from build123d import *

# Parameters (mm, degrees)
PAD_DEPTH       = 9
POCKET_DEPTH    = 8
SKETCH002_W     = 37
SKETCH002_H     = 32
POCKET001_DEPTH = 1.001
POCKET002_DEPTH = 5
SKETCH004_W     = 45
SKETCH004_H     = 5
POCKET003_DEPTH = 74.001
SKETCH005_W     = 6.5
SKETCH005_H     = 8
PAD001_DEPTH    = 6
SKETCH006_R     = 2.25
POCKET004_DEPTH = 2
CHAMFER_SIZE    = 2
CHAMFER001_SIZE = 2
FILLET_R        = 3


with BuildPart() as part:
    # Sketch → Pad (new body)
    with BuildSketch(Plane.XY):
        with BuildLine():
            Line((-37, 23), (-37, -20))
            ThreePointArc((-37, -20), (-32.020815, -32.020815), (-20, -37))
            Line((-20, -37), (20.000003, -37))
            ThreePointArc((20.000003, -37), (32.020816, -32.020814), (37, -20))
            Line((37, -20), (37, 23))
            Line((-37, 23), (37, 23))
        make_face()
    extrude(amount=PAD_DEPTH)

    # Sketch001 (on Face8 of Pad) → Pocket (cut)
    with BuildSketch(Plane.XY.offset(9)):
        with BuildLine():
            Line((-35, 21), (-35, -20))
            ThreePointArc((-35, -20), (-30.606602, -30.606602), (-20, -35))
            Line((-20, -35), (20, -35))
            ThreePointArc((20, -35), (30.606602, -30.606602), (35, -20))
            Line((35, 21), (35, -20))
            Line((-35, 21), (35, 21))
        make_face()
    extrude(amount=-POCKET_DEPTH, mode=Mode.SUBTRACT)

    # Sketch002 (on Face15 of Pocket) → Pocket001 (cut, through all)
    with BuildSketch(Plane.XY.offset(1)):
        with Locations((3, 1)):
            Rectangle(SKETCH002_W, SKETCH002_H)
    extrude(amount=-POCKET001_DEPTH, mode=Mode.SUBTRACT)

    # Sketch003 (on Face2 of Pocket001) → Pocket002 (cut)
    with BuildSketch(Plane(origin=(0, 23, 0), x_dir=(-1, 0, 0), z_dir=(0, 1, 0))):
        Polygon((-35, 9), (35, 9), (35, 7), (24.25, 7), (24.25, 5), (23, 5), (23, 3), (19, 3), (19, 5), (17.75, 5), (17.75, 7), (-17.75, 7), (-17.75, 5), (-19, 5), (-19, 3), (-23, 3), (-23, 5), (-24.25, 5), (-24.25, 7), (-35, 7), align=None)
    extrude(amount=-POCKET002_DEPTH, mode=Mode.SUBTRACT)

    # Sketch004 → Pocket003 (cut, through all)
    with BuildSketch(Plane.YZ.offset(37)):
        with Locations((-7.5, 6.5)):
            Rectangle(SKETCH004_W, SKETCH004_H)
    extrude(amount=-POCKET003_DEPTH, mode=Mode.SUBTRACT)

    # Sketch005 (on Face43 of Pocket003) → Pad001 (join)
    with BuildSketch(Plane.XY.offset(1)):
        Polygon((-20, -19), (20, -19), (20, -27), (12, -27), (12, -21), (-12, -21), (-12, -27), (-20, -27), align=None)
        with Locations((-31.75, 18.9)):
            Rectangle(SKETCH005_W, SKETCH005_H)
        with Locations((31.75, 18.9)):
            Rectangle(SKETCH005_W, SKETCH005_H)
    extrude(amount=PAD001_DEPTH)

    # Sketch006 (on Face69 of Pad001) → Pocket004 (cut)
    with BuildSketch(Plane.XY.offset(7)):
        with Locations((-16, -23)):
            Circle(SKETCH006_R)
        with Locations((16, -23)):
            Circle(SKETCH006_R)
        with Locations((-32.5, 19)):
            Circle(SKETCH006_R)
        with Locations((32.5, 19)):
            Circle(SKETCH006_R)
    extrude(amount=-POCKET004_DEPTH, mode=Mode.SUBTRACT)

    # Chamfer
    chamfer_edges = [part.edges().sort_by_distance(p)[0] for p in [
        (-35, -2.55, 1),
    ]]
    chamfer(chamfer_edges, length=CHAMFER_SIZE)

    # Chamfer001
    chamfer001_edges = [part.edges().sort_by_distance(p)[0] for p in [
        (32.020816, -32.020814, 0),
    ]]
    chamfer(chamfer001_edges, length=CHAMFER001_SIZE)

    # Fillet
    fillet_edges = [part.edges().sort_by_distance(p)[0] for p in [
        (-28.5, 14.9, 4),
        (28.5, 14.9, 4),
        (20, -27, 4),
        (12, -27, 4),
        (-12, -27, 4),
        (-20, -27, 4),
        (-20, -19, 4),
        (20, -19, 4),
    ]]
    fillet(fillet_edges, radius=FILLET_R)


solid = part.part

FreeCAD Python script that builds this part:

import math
import FreeCAD as App
import Part
import Sketcher

V = App.Vector


def edges_at(feature, points):
    """Names of the edges that pass closest to the given points."""
    edges = feature.Shape.Edges
    near = lambda p: min(range(len(edges)), key=lambda i: edges[i].distToShape(Part.Vertex(*p))[0])
    return sorted({f"Edge{near(p) + 1}" for p in points})

doc = App.newDocument("Part")
body = doc.addObject("PartDesign::Body", "Body")

# Sketch on XY plane
sketch1 = body.newObject("Sketcher::SketchObject", "Sketch")
sketch1.AttachmentSupport = (doc.getObject("XY_Plane"), [""])
sketch1.MapMode = "FlatFace"
sketch1.addGeometry([
    Part.LineSegment(V(-37, 23, 0), V(-37, -20, 0)),  # 0
    Part.ArcOfCircle(Part.Circle(V(-19.999999, -19.999999, 0), V(0, 0, 1), 17.000001), math.radians(-179.999997), math.radians(-90.000003)),  # 1
    Part.LineSegment(V(-20, -37, 0), V(20.000003, -37, 0)),  # 2
    Part.ArcOfCircle(Part.Circle(V(19.999999, -19.999999, 0), V(0, 0, 1), 17.000001), math.radians(-89.999987), math.radians(-0.000003)),  # 3
    Part.LineSegment(V(37, -20, 0), V(37, 23, 0)),  # 4
    Part.LineSegment(V(37, 23, 0), V(-37, 23, 0)),  # 5
], False)
sketch1.addConstraint([
    Sketcher.Constraint("Tangent", 0, 2, 1, 1),
    Sketcher.Constraint("Tangent", 1, 2, 2, 1),
    Sketcher.Constraint("Tangent", 2, 2, 3, 1),
    Sketcher.Constraint("Tangent", 3, 2, 4, 1),
    Sketcher.Constraint("Coincident", 4, 2, 5, 1),
    Sketcher.Constraint("Coincident", 5, 2, 0, 1),
    Sketcher.Constraint("Vertical", 0),
    Sketcher.Constraint("Horizontal", 2),
    Sketcher.Constraint("Vertical", 4),
    Sketcher.Constraint("Horizontal", 5),
    Sketcher.Constraint("Equal", 1, 3),
    Sketcher.Constraint("Radius", 1, 17.000001),
    Sketcher.Constraint("DistanceX", 5, 2, 5, 1, 74.0),
    Sketcher.Constraint("DistanceY", 0, 2, 0, 1, 43.0),
    Sketcher.Constraint("DistanceX", 1, 3, -1, 1, 19.999999),
    Sketcher.Constraint("DistanceY", 1, 3, -1, 1, 19.999999),
])
pad1 = body.newObject("PartDesign::Pad", "Pad")
pad1.Profile = sketch1
pad1.Length = 9

# Sketch on XY plane
sketch2 = body.newObject("Sketcher::SketchObject", "Sketch001")
sketch2.AttachmentSupport = (doc.getObject("XY_Plane"), [""])
sketch2.MapMode = "FlatFace"
sketch2.AttachmentOffset = App.Placement(V(0, 0, 9), App.Rotation())
sketch2.addGeometry([
    Part.LineSegment(V(-35, 21, 0), V(-35, -20, 0)),  # 0
    Part.ArcOfCircle(Part.Circle(V(-20.000001, -20.000001, 0), V(0, 0, 1), 14.999999), math.radians(179.999996), math.radians(270.000004)),  # 1
    Part.LineSegment(V(-20, -35, 0), V(20, -35, 0)),  # 2
    Part.ArcOfCircle(Part.Circle(V(20.000001, -20.000001, 0), V(0, 0, 1), 14.999999), math.radians(-90.000004), math.radians(0.000004)),  # 3
    Part.LineSegment(V(35, -20, 0), V(35, 21, 0)),  # 4
    Part.LineSegment(V(35, 21, 0), V(-35, 21, 0)),  # 5
], False)
sketch2.addConstraint([
    Sketcher.Constraint("Tangent", 0, 2, 1, 1),
    Sketcher.Constraint("Tangent", 1, 2, 2, 1),
    Sketcher.Constraint("Tangent", 2, 2, 3, 1),
    Sketcher.Constraint("Tangent", 3, 2, 4, 1),
    Sketcher.Constraint("Coincident", 4, 2, 5, 1),
    Sketcher.Constraint("Coincident", 5, 2, 0, 1),
    Sketcher.Constraint("Vertical", 0),
    Sketcher.Constraint("Horizontal", 2),
    Sketcher.Constraint("Vertical", 4),
    Sketcher.Constraint("Horizontal", 5),
    Sketcher.Constraint("Equal", 1, 3),
    Sketcher.Constraint("Radius", 1, 14.999999),
    Sketcher.Constraint("DistanceX", 2, 1, 2, 2, 40.0),
    Sketcher.Constraint("DistanceY", 0, 2, 0, 1, 41.0),
    Sketcher.Constraint("DistanceX", 1, 3, -1, 1, 20.000001),
    Sketcher.Constraint("DistanceY", 1, 3, -1, 1, 20.000001),
])
pocket1 = body.newObject("PartDesign::Pocket", "Pocket")
pocket1.Profile = sketch2
pocket1.Length = 8

# Sketch on XY plane
sketch3 = body.newObject("Sketcher::SketchObject", "Sketch002")
sketch3.AttachmentSupport = (doc.getObject("XY_Plane"), [""])
sketch3.MapMode = "FlatFace"
sketch3.AttachmentOffset = App.Placement(V(0, 0, 1), App.Rotation())
sketch3.addGeometry([
    Part.LineSegment(V(-15.5, 17, 0), V(-15.5, -15, 0)),
    Part.LineSegment(V(-15.5, -15, 0), V(21.5, -15, 0)),
    Part.LineSegment(V(21.5, -15, 0), V(21.5, 17, 0)),
    Part.LineSegment(V(21.5, 17, 0), V(-15.5, 17, 0)),
], False)
sketch3.addConstraint([
    Sketcher.Constraint("Coincident", 0, 2, 1, 1),
    Sketcher.Constraint("Coincident", 1, 2, 2, 1),
    Sketcher.Constraint("Coincident", 2, 2, 3, 1),
    Sketcher.Constraint("Coincident", 3, 2, 0, 1),
    Sketcher.Constraint("Vertical", 0),
    Sketcher.Constraint("Horizontal", 1),
    Sketcher.Constraint("Vertical", 2),
    Sketcher.Constraint("Horizontal", 3),
    Sketcher.Constraint("DistanceX", 1, 1, 1, 2, 37.0),
    Sketcher.Constraint("DistanceY", 0, 2, 0, 1, 32.0),
    Sketcher.Constraint("DistanceY", 0, 2, -1, 1, 15.0),
    Sketcher.Constraint("DistanceX", 0, 2, -1, 1, 15.5),
])
pocket2 = body.newObject("PartDesign::Pocket", "Pocket001")
pocket2.Profile = sketch3
pocket2.Type = "ThroughAll"

# Sketch on XZ plane
sketch4 = body.newObject("Sketcher::SketchObject", "Sketch003")
sketch4.AttachmentSupport = (doc.getObject("XZ_Plane"), [""])
sketch4.MapMode = "FlatFace"
sketch4.AttachmentOffset = App.Placement(V(0, 0, -23), App.Rotation())
sketch4.addGeometry([
    Part.LineSegment(V(-35, 9, 0), V(35, 9, 0)),  # 0
    Part.LineSegment(V(35, 9, 0), V(35, 7, 0)),  # 1
    Part.LineSegment(V(35, 7, 0), V(24.25, 7, 0)),  # 2
    Part.LineSegment(V(24.25, 7, 0), V(24.25, 5, 0)),  # 3
    Part.LineSegment(V(24.25, 5, 0), V(23, 5, 0)),  # 4
    Part.LineSegment(V(23, 5, 0), V(23, 3, 0)),  # 5
    Part.LineSegment(V(23, 3, 0), V(19, 3, 0)),  # 6
    Part.LineSegment(V(19, 3, 0), V(19, 5, 0)),  # 7
    Part.LineSegment(V(19, 5, 0), V(17.75, 5, 0)),  # 8
    Part.LineSegment(V(17.75, 5, 0), V(17.75, 7, 0)),  # 9
    Part.LineSegment(V(17.75, 7, 0), V(-17.75, 7, 0)),  # 10
    Part.LineSegment(V(-17.75, 7, 0), V(-17.75, 5, 0)),  # 11
    Part.LineSegment(V(-17.75, 5, 0), V(-19, 5, 0)),  # 12
    Part.LineSegment(V(-19, 5, 0), V(-19, 3, 0)),  # 13
    Part.LineSegment(V(-19, 3, 0), V(-23, 3, 0)),  # 14
    Part.LineSegment(V(-23, 3, 0), V(-23, 5, 0)),  # 15
    Part.LineSegment(V(-23, 5, 0), V(-24.25, 5, 0)),  # 16
    Part.LineSegment(V(-24.25, 5, 0), V(-24.25, 7, 0)),  # 17
    Part.LineSegment(V(-24.25, 7, 0), V(-35, 7, 0)),  # 18
    Part.LineSegment(V(-35, 7, 0), V(-35, 9, 0)),  # 19
], False)
sketch4.addConstraint([
    Sketcher.Constraint("Coincident", 0, 2, 1, 1),
    Sketcher.Constraint("Coincident", 1, 2, 2, 1),
    Sketcher.Constraint("Coincident", 2, 2, 3, 1),
    Sketcher.Constraint("Coincident", 3, 2, 4, 1),
    Sketcher.Constraint("Coincident", 4, 2, 5, 1),
    Sketcher.Constraint("Coincident", 5, 2, 6, 1),
    Sketcher.Constraint("Coincident", 6, 2, 7, 1),
    Sketcher.Constraint("Coincident", 7, 2, 8, 1),
    Sketcher.Constraint("Coincident", 8, 2, 9, 1),
    Sketcher.Constraint("Coincident", 9, 2, 10, 1),
    Sketcher.Constraint("Coincident", 10, 2, 11, 1),
    Sketcher.Constraint("Coincident", 11, 2, 12, 1),
    Sketcher.Constraint("Coincident", 12, 2, 13, 1),
    Sketcher.Constraint("Coincident", 13, 2, 14, 1),
    Sketcher.Constraint("Coincident", 14, 2, 15, 1),
    Sketcher.Constraint("Coincident", 15, 2, 16, 1),
    Sketcher.Constraint("Coincident", 16, 2, 17, 1),
    Sketcher.Constraint("Coincident", 17, 2, 18, 1),
    Sketcher.Constraint("Coincident", 18, 2, 19, 1),
    Sketcher.Constraint("Coincident", 19, 2, 0, 1),
    Sketcher.Constraint("Horizontal", 0),
    Sketcher.Constraint("Vertical", 1),
    Sketcher.Constraint("Horizontal", 2),
    Sketcher.Constraint("Vertical", 3),
    Sketcher.Constraint("Horizontal", 4),
    Sketcher.Constraint("Vertical", 5),
    Sketcher.Constraint("Horizontal", 6),
    Sketcher.Constraint("Vertical", 7),
    Sketcher.Constraint("Horizontal", 8),
    Sketcher.Constraint("Vertical", 9),
    Sketcher.Constraint("Horizontal", 10),
    Sketcher.Constraint("Vertical", 11),
    Sketcher.Constraint("Horizontal", 12),
    Sketcher.Constraint("Vertical", 13),
    Sketcher.Constraint("Horizontal", 14),
    Sketcher.Constraint("Vertical", 15),
    Sketcher.Constraint("Horizontal", 16),
    Sketcher.Constraint("Vertical", 17),
    Sketcher.Constraint("Horizontal", 18),
    Sketcher.Constraint("Vertical", 19),
    Sketcher.Constraint("Symmetric", 8, 2, 11, 2, -2),
    Sketcher.Constraint("Symmetric", 6, 2, 13, 2, -2),
    Sketcher.Constraint("Symmetric", 4, 2, 15, 2, -2),
    Sketcher.Constraint("Symmetric", 2, 2, 17, 2, -2),
    Sketcher.Constraint("Horizontal", 4, 2, 7, 2),
    Sketcher.Constraint("Horizontal", 2, 2, 9, 2),
    Sketcher.Constraint("Equal", 4, 8),
    Sketcher.Constraint("Equal", 2, 18),
    Sketcher.Constraint("Equal", 1, 3),
    Sketcher.Constraint("Equal", 3, 5),
    Sketcher.Constraint("DistanceX", 0, 1, 0, 2, 70.0),
    Sketcher.Constraint("DistanceX", 6, 2, 6, 1, 4.0),
    Sketcher.Constraint("DistanceY", 1, 2, 1, 1, 2.0),
    Sketcher.Constraint("DistanceX", 10, 2, 10, 1, 35.5),
    Sketcher.Constraint("DistanceY", -1, 1, 0, 2, 9.0),
    Sketcher.Constraint("DistanceX", -1, 1, 4, 2, 23.0),
])
pocket3 = body.newObject("PartDesign::Pocket", "Pocket002")
pocket3.Profile = sketch4
pocket3.Length = 5
pocket3.Reversed = True

# Sketch on YZ plane
sketch5 = body.newObject("Sketcher::SketchObject", "Sketch004")
sketch5.AttachmentSupport = (doc.getObject("YZ_Plane"), [""])
sketch5.MapMode = "FlatFace"
sketch5.AttachmentOffset = App.Placement(V(0, 0, 37), App.Rotation())
sketch5.addGeometry([
    Part.LineSegment(V(-30, 9, 0), V(-30, 4, 0)),
    Part.LineSegment(V(-30, 4, 0), V(15, 4, 0)),
    Part.LineSegment(V(15, 4, 0), V(15, 9, 0)),
    Part.LineSegment(V(15, 9, 0), V(-30, 9, 0)),
], False)
sketch5.addConstraint([
    Sketcher.Constraint("Coincident", 0, 2, 1, 1),
    Sketcher.Constraint("Coincident", 1, 2, 2, 1),
    Sketcher.Constraint("Coincident", 2, 2, 3, 1),
    Sketcher.Constraint("Coincident", 3, 2, 0, 1),
    Sketcher.Constraint("Vertical", 0),
    Sketcher.Constraint("Horizontal", 1),
    Sketcher.Constraint("Vertical", 2),
    Sketcher.Constraint("Horizontal", 3),
    Sketcher.Constraint("DistanceX", 1, 1, 1, 2, 45.0),
    Sketcher.Constraint("DistanceY", 0, 2, 0, 1, 5.0),
    Sketcher.Constraint("DistanceX", 0, 2, -1, 1, 30.0),
    Sketcher.Constraint("DistanceY", -1, 1, 0, 2, 4.0),
])
pocket4 = body.newObject("PartDesign::Pocket", "Pocket003")
pocket4.Profile = sketch5
pocket4.Type = "ThroughAll"

# Sketch on XY plane
sketch6 = body.newObject("Sketcher::SketchObject", "Sketch005")
sketch6.AttachmentSupport = (doc.getObject("XY_Plane"), [""])
sketch6.MapMode = "FlatFace"
sketch6.AttachmentOffset = App.Placement(V(0, 0, 1), App.Rotation())
sketch6.addGeometry([
    Part.LineSegment(V(20, -19, 0), V(-20, -19, 0)),  # 0
    Part.LineSegment(V(-20, -19, 0), V(-20, -27, 0)),  # 1
    Part.LineSegment(V(-20, -27, 0), V(-12, -27, 0)),  # 2
    Part.LineSegment(V(-12, -27, 0), V(-12, -21, 0)),  # 3
    Part.LineSegment(V(-12, -21, 0), V(12, -21, 0)),  # 4
    Part.LineSegment(V(12, -21, 0), V(12, -27, 0)),  # 5
    Part.LineSegment(V(12, -27, 0), V(20, -27, 0)),  # 6
    Part.LineSegment(V(20, -27, 0), V(20, -19, 0)),  # 7
    Part.LineSegment(V(-35, 22.9, 0), V(-35, 14.9, 0)),  # 8
    Part.LineSegment(V(-35, 14.9, 0), V(-28.5, 14.9, 0)),  # 9
    Part.LineSegment(V(-28.5, 14.9, 0), V(-28.5, 22.9, 0)),  # 10
    Part.LineSegment(V(-28.5, 22.9, 0), V(-35, 22.9, 0)),  # 11
    Part.LineSegment(V(28.5, 22.9, 0), V(28.5, 14.9, 0)),  # 12
    Part.LineSegment(V(28.5, 14.9, 0), V(35, 14.9, 0)),  # 13
    Part.LineSegment(V(35, 14.9, 0), V(35, 22.9, 0)),  # 14
    Part.LineSegment(V(35, 22.9, 0), V(28.5, 22.9, 0)),  # 15
], False)
sketch6.addConstraint([
    Sketcher.Constraint("Coincident", 0, 2, 1, 1),
    Sketcher.Constraint("Coincident", 1, 2, 2, 1),
    Sketcher.Constraint("Coincident", 2, 2, 3, 1),
    Sketcher.Constraint("Coincident", 3, 2, 4, 1),
    Sketcher.Constraint("Coincident", 4, 2, 5, 1),
    Sketcher.Constraint("Coincident", 5, 2, 6, 1),
    Sketcher.Constraint("Coincident", 6, 2, 7, 1),
    Sketcher.Constraint("Coincident", 7, 2, 0, 1),
    Sketcher.Constraint("Coincident", 8, 2, 9, 1),
    Sketcher.Constraint("Coincident", 9, 2, 10, 1),
    Sketcher.Constraint("Coincident", 10, 2, 11, 1),
    Sketcher.Constraint("Coincident", 11, 2, 8, 1),
    Sketcher.Constraint("Coincident", 12, 2, 13, 1),
    Sketcher.Constraint("Coincident", 13, 2, 14, 1),
    Sketcher.Constraint("Coincident", 14, 2, 15, 1),
    Sketcher.Constraint("Coincident", 15, 2, 12, 1),
    Sketcher.Constraint("Horizontal", 0),
    Sketcher.Constraint("Vertical", 1),
    Sketcher.Constraint("Horizontal", 2),
    Sketcher.Constraint("Vertical", 3),
    Sketcher.Constraint("Horizontal", 4),
    Sketcher.Constraint("Vertical", 5),
    Sketcher.Constraint("Horizontal", 6),
    Sketcher.Constraint("Vertical", 7),
    Sketcher.Constraint("Vertical", 8),
    Sketcher.Constraint("Horizontal", 9),
    Sketcher.Constraint("Vertical", 10),
    Sketcher.Constraint("Horizontal", 11),
    Sketcher.Constraint("Vertical", 12),
    Sketcher.Constraint("Horizontal", 13),
    Sketcher.Constraint("Vertical", 14),
    Sketcher.Constraint("Horizontal", 15),
    Sketcher.Constraint("Symmetric", 2, 2, 5, 2, -2),
    Sketcher.Constraint("Symmetric", 9, 2, 12, 2, -2),
    Sketcher.Constraint("Symmetric", 11, 2, 14, 2, -2),
    Sketcher.Constraint("Equal", 2, 6),
    Sketcher.Constraint("Equal", 6, 1),
    Sketcher.Constraint("Equal", 7, 8),
    Sketcher.Constraint("DistanceX", 0, 2, 0, 1, 40.0),
    Sketcher.Constraint("DistanceX", 2, 1, 2, 2, 8.0),
    Sketcher.Constraint("DistanceY", 3, 1, 3, 2, 6.0),
    Sketcher.Constraint("DistanceX", 9, 1, 9, 2, 6.5),
    Sketcher.Constraint("DistanceY", 0, 2, -1, 1, 19.0),
    Sketcher.Constraint("DistanceX", 8, 2, -1, 1, 35.0),
    Sketcher.Constraint("DistanceY", -1, 1, 8, 2, 14.9),
])
pad2 = body.newObject("PartDesign::Pad", "Pad001")
pad2.Profile = sketch6
pad2.Length = 6

# Sketch on XY plane
sketch7 = body.newObject("Sketcher::SketchObject", "Sketch006")
sketch7.AttachmentSupport = (doc.getObject("XY_Plane"), [""])
sketch7.MapMode = "FlatFace"
sketch7.AttachmentOffset = App.Placement(V(0, 0, 7), App.Rotation())
sketch7.addGeometry([
    Part.Circle(V(-16, -23, 0), V(0, 0, 1), 2.25),
    Part.Circle(V(16, -23, 0), V(0, 0, 1), 2.25),
    Part.Circle(V(-32.5, 19, 0), V(0, 0, 1), 2.25),
    Part.Circle(V(32.5, 19, 0), V(0, 0, 1), 2.25),
], False)
sketch7.addConstraint([
    Sketcher.Constraint("Equal", 0, 1),
    Sketcher.Constraint("Equal", 1, 2),
    Sketcher.Constraint("Equal", 2, 3),
    Sketcher.Constraint("Symmetric", 0, 3, 1, 3, -2),
    Sketcher.Constraint("Symmetric", 2, 3, 3, 3, -2),
    Sketcher.Constraint("Diameter", 0, 4.5),
    Sketcher.Constraint("DistanceX", 0, 3, -1, 1, 16.0),
    Sketcher.Constraint("DistanceY", 0, 3, -1, 1, 23.0),
    Sketcher.Constraint("DistanceY", -1, 1, 2, 3, 19.0),
    Sketcher.Constraint("DistanceX", 2, 3, 3, 3, 65.0),
])
pocket5 = body.newObject("PartDesign::Pocket", "Pocket004")
pocket5.Profile = sketch7
pocket5.Length = 2
doc.recompute()

chamfer = body.newObject("PartDesign::Chamfer", "Chamfer")
chamfer.Base = (pocket5, edges_at(pocket5, [(-35, -2.55, 1)]))
chamfer.Size = 2
doc.recompute()

chamfer2 = body.newObject("PartDesign::Chamfer", "Chamfer001")
chamfer2.Base = (chamfer, edges_at(chamfer, [(32.021, -32.021, 0)]))
chamfer2.Size = 2
doc.recompute()

fillet = body.newObject("PartDesign::Fillet", "Fillet")
fillet.Base = (chamfer2, edges_at(chamfer2, [
    (-28.5, 14.9, 4),
    (28.5, 14.9, 4),
    (20, -27, 4),
    (12, -27, 4),
    (-12, -27, 4),
    (-20, -27, 4),
    (-20, -19, 4),
    (20, -19, 4),
]))
fillet.Radius = 3

doc.recompute()
